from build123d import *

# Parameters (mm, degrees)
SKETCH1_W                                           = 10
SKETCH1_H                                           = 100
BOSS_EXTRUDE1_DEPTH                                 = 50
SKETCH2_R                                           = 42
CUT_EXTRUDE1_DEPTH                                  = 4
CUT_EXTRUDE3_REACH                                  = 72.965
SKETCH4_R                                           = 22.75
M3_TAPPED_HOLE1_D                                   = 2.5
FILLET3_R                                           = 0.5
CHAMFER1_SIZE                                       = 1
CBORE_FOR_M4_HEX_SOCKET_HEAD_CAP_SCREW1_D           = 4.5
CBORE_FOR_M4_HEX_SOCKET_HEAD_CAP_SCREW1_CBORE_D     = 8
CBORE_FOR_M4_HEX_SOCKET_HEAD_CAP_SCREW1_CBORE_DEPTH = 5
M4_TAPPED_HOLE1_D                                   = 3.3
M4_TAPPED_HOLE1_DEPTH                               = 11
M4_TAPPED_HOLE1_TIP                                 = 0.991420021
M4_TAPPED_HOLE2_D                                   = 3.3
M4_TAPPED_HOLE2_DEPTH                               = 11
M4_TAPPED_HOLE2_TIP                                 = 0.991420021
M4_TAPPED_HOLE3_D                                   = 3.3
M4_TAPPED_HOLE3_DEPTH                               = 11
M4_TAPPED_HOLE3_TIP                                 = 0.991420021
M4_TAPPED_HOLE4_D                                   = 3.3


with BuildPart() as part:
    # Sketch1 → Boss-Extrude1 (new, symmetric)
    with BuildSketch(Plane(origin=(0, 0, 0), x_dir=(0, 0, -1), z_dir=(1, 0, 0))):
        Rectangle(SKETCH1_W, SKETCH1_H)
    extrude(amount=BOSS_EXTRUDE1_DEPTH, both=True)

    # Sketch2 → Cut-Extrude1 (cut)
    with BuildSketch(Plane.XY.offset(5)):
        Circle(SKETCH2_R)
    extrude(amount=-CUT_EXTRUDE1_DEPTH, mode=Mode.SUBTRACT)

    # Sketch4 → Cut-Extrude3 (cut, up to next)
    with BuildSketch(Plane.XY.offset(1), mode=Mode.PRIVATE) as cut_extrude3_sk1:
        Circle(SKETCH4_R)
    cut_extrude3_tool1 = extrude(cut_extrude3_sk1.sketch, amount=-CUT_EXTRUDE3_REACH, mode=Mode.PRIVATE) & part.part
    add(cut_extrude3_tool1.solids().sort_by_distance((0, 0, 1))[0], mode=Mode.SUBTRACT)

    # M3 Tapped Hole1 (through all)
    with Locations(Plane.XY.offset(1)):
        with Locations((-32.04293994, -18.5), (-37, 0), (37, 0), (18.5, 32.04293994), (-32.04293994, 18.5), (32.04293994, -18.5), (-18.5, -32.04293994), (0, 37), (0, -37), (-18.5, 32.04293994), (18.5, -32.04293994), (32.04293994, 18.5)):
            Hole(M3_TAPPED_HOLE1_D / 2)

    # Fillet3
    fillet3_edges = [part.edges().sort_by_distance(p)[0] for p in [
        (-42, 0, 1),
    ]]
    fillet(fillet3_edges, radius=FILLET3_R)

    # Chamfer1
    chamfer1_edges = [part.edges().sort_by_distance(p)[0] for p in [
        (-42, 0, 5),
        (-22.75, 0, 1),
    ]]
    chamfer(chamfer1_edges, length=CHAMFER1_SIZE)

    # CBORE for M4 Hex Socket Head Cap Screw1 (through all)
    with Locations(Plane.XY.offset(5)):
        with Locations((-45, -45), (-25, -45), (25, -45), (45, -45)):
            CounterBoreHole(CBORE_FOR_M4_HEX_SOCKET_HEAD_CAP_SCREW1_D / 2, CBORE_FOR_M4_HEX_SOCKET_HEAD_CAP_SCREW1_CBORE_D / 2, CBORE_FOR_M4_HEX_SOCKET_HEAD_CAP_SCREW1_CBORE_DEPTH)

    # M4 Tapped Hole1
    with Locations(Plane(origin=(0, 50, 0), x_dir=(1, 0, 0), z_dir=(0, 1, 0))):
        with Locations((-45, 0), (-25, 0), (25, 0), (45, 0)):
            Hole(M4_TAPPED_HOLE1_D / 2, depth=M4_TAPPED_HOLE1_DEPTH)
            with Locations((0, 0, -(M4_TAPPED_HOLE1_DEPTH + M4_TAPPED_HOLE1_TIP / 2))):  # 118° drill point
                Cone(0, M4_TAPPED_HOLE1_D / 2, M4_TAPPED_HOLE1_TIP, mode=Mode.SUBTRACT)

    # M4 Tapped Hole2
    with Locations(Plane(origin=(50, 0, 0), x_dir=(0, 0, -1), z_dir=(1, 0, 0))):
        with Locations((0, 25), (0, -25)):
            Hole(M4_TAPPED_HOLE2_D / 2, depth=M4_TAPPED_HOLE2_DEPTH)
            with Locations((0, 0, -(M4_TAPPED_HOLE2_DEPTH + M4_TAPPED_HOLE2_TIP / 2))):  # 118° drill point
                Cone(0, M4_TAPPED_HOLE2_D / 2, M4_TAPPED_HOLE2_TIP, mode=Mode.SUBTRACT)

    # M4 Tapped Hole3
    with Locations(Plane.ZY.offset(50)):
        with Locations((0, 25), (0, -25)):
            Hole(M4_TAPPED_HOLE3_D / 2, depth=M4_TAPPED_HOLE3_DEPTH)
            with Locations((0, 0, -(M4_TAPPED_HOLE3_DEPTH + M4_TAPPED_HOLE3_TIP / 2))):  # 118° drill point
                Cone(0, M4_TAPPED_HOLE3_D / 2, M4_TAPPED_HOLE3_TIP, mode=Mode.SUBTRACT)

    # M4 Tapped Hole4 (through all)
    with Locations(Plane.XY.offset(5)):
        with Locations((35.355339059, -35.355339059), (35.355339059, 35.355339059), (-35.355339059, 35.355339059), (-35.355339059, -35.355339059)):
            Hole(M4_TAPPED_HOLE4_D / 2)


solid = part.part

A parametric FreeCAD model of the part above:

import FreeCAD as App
import Part
import Sketcher
Q = App.Units.Quantity


def edges_at(feature, points):
    """Names of the edges that pass closest to the given points."""
    edges = feature.Shape.Edges
    near = lambda p: min(range(len(edges)), key=lambda i: edges[i].distToShape(Part.Vertex(*p))[0])
    return sorted({f"Edge{near(p) + 1}" for p in points})

doc = App.newDocument("Part")
body = doc.addObject("PartDesign::Body", "Body")

# Sketch on YZ plane
sketch1 = body.newObject("Sketcher::SketchObject", "Sketch")
sketch1.AttachmentSupport = (doc.getObject("YZ_Plane"), [""])
sketch1.MapMode = "FlatFace"
sketch1.addGeometry([
    Part.LineSegment(App.Vector(50, 5, 0), App.Vector(-50, 5, 0)),
    Part.LineSegment(App.Vector(-50, 5, 0), App.Vector(-50, -5, 0)),
    Part.LineSegment(App.Vector(-50, -5, 0), App.Vector(50, -5, 0)),
    Part.LineSegment(App.Vector(50, -5, 0), App.Vector(50, 5, 0)),
], False)
sketch1.addConstraint([
    Sketcher.Constraint("Coincident", 0, 2, 1, 1),
    Sketcher.Constraint("Coincident", 1, 2, 2, 1),
    Sketcher.Constraint("Coincident", 2, 2, 3, 1),
    Sketcher.Constraint("Coincident", 3, 2, 0, 1),
    Sketcher.Constraint("Horizontal", 0),
    Sketcher.Constraint("Vertical", 1),
    Sketcher.Constraint("Horizontal", 2),
    Sketcher.Constraint("Vertical", 3),
    Sketcher.Constraint("Symmetric", 0, 2, 2, 2, -1, 1),
    Sketcher.Constraint("DistanceX", 0, 2, 0, 1, Q("100 mm")),
    Sketcher.Constraint("DistanceY", 1, 2, 1, 1, Q("10 mm")),
])
pad1 = body.newObject("PartDesign::Pad", "Pad")
pad1.Profile = sketch1
pad1.Length = 100
pad1.Midplane = True

# Sketch on XY plane
sketch2 = body.newObject("Sketcher::SketchObject", "Sketch001")
sketch2.AttachmentSupport = (doc.getObject("XY_Plane"), [""])
sketch2.MapMode = "FlatFace"
sketch2.AttachmentOffset = App.Placement(App.Vector(0, 0, 5), App.Rotation())
sketch2.addGeometry(Part.Circle(App.Vector(0, 0, 0), App.Vector(0, 0, 1), 42), False)
sketch2.addConstraint([
    Sketcher.Constraint("Coincident", 0, 3, -1, 1),
    Sketcher.Constraint("Diameter", 0, Q("84 mm")),
])
pocket1 = body.newObject("PartDesign::Pocket", "Pocket")
pocket1.Profile = sketch2
pocket1.Length = 4

# Sketch on XY plane
sketch3 = body.newObject("Sketcher::SketchObject", "Sketch002")
sketch3.AttachmentSupport = (doc.getObject("XY_Plane"), [""])
sketch3.MapMode = "FlatFace"
sketch3.AttachmentOffset = App.Placement(App.Vector(0, 0, 1), App.Rotation())
sketch3.addGeometry(Part.Circle(App.Vector(0, 0, 0), App.Vector(0, 0, 1), 22.75), False)
sketch3.addConstraint([
    Sketcher.Constraint("Coincident", 0, 3, -1, 1),
    Sketcher.Constraint("Diameter", 0, Q("45.5 mm")),
])
pocket2 = body.newObject("PartDesign::Pocket", "Pocket001")
pocket2.Profile = sketch3
pocket2.Type = "UpToFirst"

# Sketch on XY plane
sketch4 = body.newObject("Sketcher::SketchObject", "Sketch003")
sketch4.AttachmentSupport = (doc.getObject("XY_Plane"), [""])
sketch4.MapMode = "FlatFace"
sketch4.AttachmentOffset = App.Placement(App.Vector(0, 0, 1), App.Rotation())
sketch4.addGeometry([
    Part.Circle(App.Vector(-32.04294, -18.5, 0), App.Vector(0, 0, 1), 1.25),  # 0
    Part.Circle(App.Vector(-37, 0, 0), App.Vector(0, 0, 1), 1.25),  # 1
    Part.Circle(App.Vector(37, 0, 0), App.Vector(0, 0, 1), 1.25),  # 2
    Part.Circle(App.Vector(18.5, 32.04294, 0), App.Vector(0, 0, 1), 1.25),  # 3
    Part.Circle(App.Vector(-32.04294, 18.5, 0), App.Vector(0, 0, 1), 1.25),  # 4
    Part.Circle(App.Vector(32.04294, -18.5, 0), App.Vector(0, 0, 1), 1.25),  # 5
    Part.Circle(App.Vector(-18.5, -32.04294, 0), App.Vector(0, 0, 1), 1.25),  # 6
    Part.Circle(App.Vector(0, 37, 0), App.Vector(0, 0, 1), 1.25),  # 7
    Part.Circle(App.Vector(0, -37, 0), App.Vector(0, 0, 1), 1.25),  # 8
    Part.Circle(App.Vector(-18.5, 32.04294, 0), App.Vector(0, 0, 1), 1.25),  # 9
    Part.Circle(App.Vector(18.5, -32.04294, 0), App.Vector(0, 0, 1), 1.25),  # 10
    Part.Circle(App.Vector(32.04294, 18.5, 0), App.Vector(0, 0, 1), 1.25),  # 11
], False)
sketch4.addConstraint([
    Sketcher.Constraint("Equal", 0, 1),
    Sketcher.Constraint("Equal", 1, 2),
    Sketcher.Constraint("Equal", 2, 3),
    Sketcher.Constraint("Equal", 3, 4),
    Sketcher.Constraint("Equal", 4, 5),
    Sketcher.Constraint("Equal", 5, 6),
    Sketcher.Constraint("Equal", 6, 7),
    Sketcher.Constraint("Equal", 7, 8),
    Sketcher.Constraint("Equal", 8, 9),
    Sketcher.Constraint("Equal", 9, 10),
    Sketcher.Constraint("Equal", 10, 11),
    Sketcher.Constraint("Symmetric", 1, 3, 2, 3, -1, 1),
    Sketcher.Constraint("Symmetric", 4, 3, 5, 3, -1, 1),
    Sketcher.Constraint("Symmetric", 3, 3, 6, 3, -1, 1),
    Sketcher.Constraint("Symmetric", 7, 3, 8, 3, -1, 1),
    Sketcher.Constraint("Symmetric", 9, 3, 10, 3, -1, 1),
    Sketcher.Constraint("Symmetric", 0, 3, 11, 3, -1, 1),
    Sketcher.Constraint("Symmetric", 0, 3, 5, 3, -2),
    Sketcher.Constraint("Symmetric", 3, 3, 9, 3, -2),
    Sketcher.Constraint("PointOnObject", 1, 3, -1),
    Sketcher.Constraint("PointOnObject", 7, 3, -2),
    Sketcher.Constraint("Diameter", 0, Q("2.5 mm")),
    Sketcher.Constraint("DistanceX", 1, 3, -1, 1, Q("37 mm")),
    Sketcher.Constraint("DistanceY", -1, 1, 7, 3, Q("37 mm")),
    Sketcher.Constraint("DistanceY", 0, 3, 4, 3, Q("37 mm")),
    Sketcher.Constraint("DistanceX", 9, 3, 3, 3, Q("37 mm")),
    Sketcher.Constraint("DistanceX", 0, 3, -1, 1, Q("32.04294 mm")),
    Sketcher.Constraint("DistanceY", -1, 1, 3, 3, Q("32.04294 mm")),
])
doc.recompute()
hole = body.newObject("PartDesign::Hole", "Hole")
hole.Profile = sketch4
hole.ThreadType = "None"
hole.Diameter = 2.5
hole.DepthType = "ThroughAll"
doc.recompute()

fillet = body.newObject("PartDesign::Fillet", "Fillet")
fillet.Base = (hole, edges_at(hole, [(-42, 0, 1)]))
fillet.Radius = 0.5
doc.recompute()

chamfer = body.newObject("PartDesign::Chamfer", "Chamfer")
chamfer.Base = (fillet, edges_at(fillet, [(-42, 0, 5), (-22.75, 0, 1)]))
chamfer.Size = 1

# Sketch on XY plane
sketch5 = body.newObject("Sketcher::SketchObject", "Sketch004")
sketch5.AttachmentSupport = (doc.getObject("XY_Plane"), [""])
sketch5.MapMode = "FlatFace"
sketch5.AttachmentOffset = App.Placement(App.Vector(0, 0, 5), App.Rotation())
sketch5.addGeometry([
    Part.Circle(App.Vector(-45, -45, 0), App.Vector(0, 0, 1), 2.25),
    Part.Circle(App.Vector(-25, -45, 0), App.Vector(0, 0, 1), 2.25),
    Part.Circle(App.Vector(25, -45, 0), App.Vector(0, 0, 1), 2.25),
    Part.Circle(App.Vector(45, -45, 0), App.Vector(0, 0, 1), 2.25),
], False)
sketch5.addConstraint([
    Sketcher.Constraint("Equal", 0, 1),
    Sketcher.Constraint("Equal", 1, 2),
    Sketcher.Constraint("Equal", 2, 3),
    Sketcher.Constraint("Symmetric", 1, 3, 2, 3, -2),
    Sketcher.Constraint("Symmetric", 0, 3, 3, 3, -2),
    Sketcher.Constraint("Horizontal", 0, 3, 1, 3),
    Sketcher.Constraint("Diameter", 0, Q("4.5 mm")),
    Sketcher.Constraint("DistanceX", 0, 3, -1, 1, Q("45 mm")),
    Sketcher.Constraint("DistanceY", 0, 3, -1, 1, Q("45 mm")),
    Sketcher.Constraint("DistanceX", 1, 3, -1, 1, Q("25 mm")),
])
doc.recompute()
hole2 = body.newObject("PartDesign::Hole", "Hole001")
hole2.Profile = sketch5
hole2.ThreadType = "None"
hole2.Diameter = 4.5
hole2.DepthType = "ThroughAll"
hole2.HoleCutType = "Counterbore"
hole2.HoleCutDiameter = 8
hole2.HoleCutDepth = 5

# Sketch on XZ plane
sketch6 = body.newObject("Sketcher::SketchObject", "Sketch005")
sketch6.AttachmentSupport = (doc.getObject("XZ_Plane"), [""])
sketch6.MapMode = "FlatFace"
sketch6.AttachmentOffset = App.Placement(App.Vector(0, 0, -50), App.Rotation())
sketch6.addGeometry([
    Part.Circle(App.Vector(-45, 0, 0), App.Vector(0, 0, 1), 1.65),
    Part.Circle(App.Vector(-25, 0, 0), App.Vector(0, 0, 1), 1.65),
    Part.Circle(App.Vector(25, 0, 0), App.Vector(0, 0, 1), 1.65),
    Part.Circle(App.Vector(45, 0, 0), App.Vector(0, 0, 1), 1.65),
], False)
sketch6.addConstraint([
    Sketcher.Constraint("Equal", 0, 1),
    Sketcher.Constraint("Equal", 1, 2),
    Sketcher.Constraint("Equal", 2, 3),
    Sketcher.Constraint("Symmetric", 1, 3, 2, 3, -1, 1),
    Sketcher.Constraint("Symmetric", 0, 3, 3, 3, -1, 1),
    Sketcher.Constraint("PointOnObject", 0, 3, -1),
    Sketcher.Constraint("PointOnObject", 1, 3, -1),
    Sketcher.Constraint("Diameter", 0, Q("3.3 mm")),
    Sketcher.Constraint("DistanceX", 0, 3, -1, 1, Q("45 mm")),
    Sketcher.Constraint("DistanceX", 1, 3, -1, 1, Q("25 mm")),
])
doc.recompute()
hole3 = body.newObject("PartDesign::Hole", "Hole002")
hole3.Profile = sketch6
hole3.ThreadType = "None"
hole3.Diameter = 3.3
hole3.DepthType = "Dimension"
hole3.Depth = 11
hole3.DrillPoint = "Angled"
hole3.DrillPointAngle = 118
hole3.Reversed = True

# Sketch on YZ plane
sketch7 = body.newObject("Sketcher::SketchObject", "Sketch006")
sketch7.AttachmentSupport = (doc.getObject("YZ_Plane"), [""])
sketch7.MapMode = "FlatFace"
sketch7.AttachmentOffset = App.Placement(App.Vector(0, 0, 50), App.Rotation())
sketch7.addGeometry([
    Part.Circle(App.Vector(25, 0, 0), App.Vector(0, 0, 1), 1.65),
    Part.Circle(App.Vector(-25, 0, 0), App.Vector(0, 0, 1), 1.65),
], False)
sketch7.addConstraint([
    Sketcher.Constraint("Equal", 0, 1),
    Sketcher.Constraint("Symmetric", 0, 3, 1, 3, -1, 1),
    Sketcher.Constraint("PointOnObject", 0, 3, -1),
    Sketcher.Constraint("Diameter", 0, Q("3.3 mm")),
    Sketcher.Constraint("DistanceX", -1, 1, 0, 3, Q("25 mm")),
])
doc.recompute()
hole4 = body.newObject("PartDesign::Hole", "Hole003")
hole4.Profile = sketch7
hole4.ThreadType = "None"
hole4.Diameter = 3.3
hole4.DepthType = "Dimension"
hole4.Depth = 11
hole4.DrillPoint = "Angled"
hole4.DrillPointAngle = 118

# Sketch on YZ plane
sketch8 = body.newObject("Sketcher::SketchObject", "Sketch007")
sketch8.AttachmentSupport = (doc.getObject("YZ_Plane"), [""])
sketch8.MapMode = "FlatFace"
sketch8.AttachmentOffset = App.Placement(App.Vector(0, 0, -50), App.Rotation())
sketch8.addGeometry([
    Part.Circle(App.Vector(25, 0, 0), App.Vector(0, 0, 1), 1.65),
    Part.Circle(App.Vector(-25, 0, 0), App.Vector(0, 0, 1), 1.65),
], False)
sketch8.addConstraint([
    Sketcher.Constraint("Equal", 0, 1),
    Sketcher.Constraint("Symmetric", 0, 3, 1, 3, -1, 1),
    Sketcher.Constraint("PointOnObject", 0, 3, -1),
    Sketcher.Constraint("Diameter", 0, Q("3.3 mm")),
    Sketcher.Constraint("DistanceX", -1, 1, 0, 3, Q("25 mm")),
])
doc.recompute()
hole5 = body.newObject("PartDesign::Hole", "Hole004")
hole5.Profile = sketch8
hole5.ThreadType = "None"
hole5.Diameter = 3.3
hole5.DepthType = "Dimension"
hole5.Depth = 11
hole5.DrillPoint = "Angled"
hole5.DrillPointAngle = 118
hole5.Reversed = True

# Sketch on XY plane
sketch9 = body.newObject("Sketcher::SketchObject", "Sketch008")
sketch9.AttachmentSupport = (doc.getObject("XY_Plane"), [""])
sketch9.MapMode = "FlatFace"
sketch9.AttachmentOffset = App.Placement(App.Vector(0, 0, 5), App.Rotation())
sketch9.addGeometry([
    Part.Circle(App.Vector(35.355339, -35.355339, 0), App.Vector(0, 0, 1), 1.65),
    Part.Circle(App.Vector(35.355339, 35.355339, 0), App.Vector(0, 0, 1), 1.65),
    Part.Circle(App.Vector(-35.355339, 35.355339, 0), App.Vector(0, 0, 1), 1.65),
    Part.Circle(App.Vector(-35.355339, -35.355339, 0), App.Vector(0, 0, 1), 1.65),
], False)
sketch9.addConstraint([
    Sketcher.Constraint("Equal", 0, 1),
    Sketcher.Constraint("Equal", 1, 2),
    Sketcher.Constraint("Equal", 2, 3),
    Sketcher.Constraint("Symmetric", 0, 3, 2, 3, -1, 1),
    Sketcher.Constraint("Symmetric", 1, 3, 3, 3, -1, 1),
    Sketcher.Constraint("Symmetric", 1, 3, 2, 3, -2),
    Sketcher.Constraint("Diameter", 0, Q("3.3 mm")),
    Sketcher.Constraint("DistanceX", -1, 1, 0, 3, Q("35.355339 mm")),
    Sketcher.Constraint("DistanceY", 0, 3, -1, 1, Q("35.355339 mm")),
])
doc.recompute()
hole6 = body.newObject("PartDesign::Hole", "Hole005")
hole6.Profile = sketch9
hole6.ThreadType = "None"
hole6.Diameter = 3.3
hole6.DepthType = "ThroughAll"

doc.recompute()
